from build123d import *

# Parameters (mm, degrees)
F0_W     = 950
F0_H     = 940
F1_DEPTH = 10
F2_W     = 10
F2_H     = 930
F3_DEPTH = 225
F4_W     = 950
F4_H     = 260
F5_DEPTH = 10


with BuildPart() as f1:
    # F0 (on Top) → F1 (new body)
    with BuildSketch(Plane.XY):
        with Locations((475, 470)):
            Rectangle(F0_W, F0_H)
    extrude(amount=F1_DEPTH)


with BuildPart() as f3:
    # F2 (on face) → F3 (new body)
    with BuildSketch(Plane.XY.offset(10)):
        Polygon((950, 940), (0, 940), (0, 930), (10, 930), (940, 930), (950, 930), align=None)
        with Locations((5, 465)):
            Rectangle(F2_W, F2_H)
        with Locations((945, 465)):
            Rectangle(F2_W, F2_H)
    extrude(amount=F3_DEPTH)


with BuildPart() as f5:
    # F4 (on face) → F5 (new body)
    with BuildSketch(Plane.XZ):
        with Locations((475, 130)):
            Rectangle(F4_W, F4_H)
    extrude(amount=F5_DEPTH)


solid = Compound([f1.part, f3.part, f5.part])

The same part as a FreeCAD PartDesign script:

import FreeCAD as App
import Part
import Sketcher
from FreeCAD import Vector


def add_polygon(sketch, points):
    """Adds a closed chain of lines whose ends are joined by coincident constraints."""
    first, n = sketch.GeometryCount, len(points)
    for a, b in zip(points, points[1:] + points[:1]):
        sketch.addGeometry(Part.LineSegment(App.Vector(*a, 0), App.Vector(*b, 0)), False)
    for i in range(n):
        sketch.addConstraint(Sketcher.Constraint("Coincident", first + i, 2, first + (i + 1) % n, 1))

doc = App.newDocument("Part")
body = doc.addObject("PartDesign::Body", "Body")

# Sketch on XY plane
sketch1 = body.newObject("Sketcher::SketchObject", "Sketch")
sketch1.AttachmentSupport = (doc.getObject("XY_Plane"), [""])
sketch1.MapMode = "FlatFace"
add_polygon(sketch1, [(0, 940), (0, 0), (950, 0), (950, 940)])  # lines 0-3
sketch1.addConstraint([
    Sketcher.Constraint("Vertical", 0),
    Sketcher.Constraint("Horizontal", 1),
    Sketcher.Constraint("Vertical", 2),
    Sketcher.Constraint("Horizontal", 3),
    Sketcher.Constraint("Coincident", 0, 2, -1, 1),
    Sketcher.Constraint("DistanceX", 1, 1, 1, 2, 950.0),
    Sketcher.Constraint("DistanceY", 0, 2, 0, 1, 940.0),
])
pad1 = body.newObject("PartDesign::Pad", "Pad")
pad1.Profile = sketch1
pad1.Length = 10
body2 = doc.addObject("PartDesign::Body", "Body001")

# Sketch on XY plane
sketch2 = body2.newObject("Sketcher::SketchObject", "Sketch001")
sketch2.AttachmentSupport = (doc.getObject("XY_Plane001"), [""])
sketch2.MapMode = "FlatFace"
sketch2.AttachmentOffset = App.Placement(Vector(0, 0, 10), App.Rotation())
add_polygon(sketch2, [(950, 940), (0, 940), (0, 0), (10, 0), (10, 930), (940, 930), (940, 0), (950, 0)])  # lines 0-7
sketch2.addConstraint([
    Sketcher.Constraint("Horizontal", 0),
    Sketcher.Constraint("Vertical", 1),
    Sketcher.Constraint("Horizontal", 2),
    Sketcher.Constraint("Vertical", 3),
    Sketcher.Constraint("Horizontal", 4),
    Sketcher.Constraint("Vertical", 5),
    Sketcher.Constraint("Horizontal", 6),
    Sketcher.Constraint("Vertical", 7),
    Sketcher.Constraint("Coincident", 1, 2, -1, 1),
    Sketcher.Constraint("PointOnObject", 5, 2, -1),
    Sketcher.Constraint("Equal", 2, 6),
    Sketcher.Constraint("Equal", 4, 3),
    Sketcher.Constraint("DistanceX", 0, 2, 0, 1, 950.0),
    Sketcher.Constraint("DistanceX", 2, 1, 2, 2, 10.0),
    Sketcher.Constraint("DistanceY", 1, 2, 1, 1, 940.0),
])
pad2 = body2.newObject("PartDesign::Pad", "Pad001")
pad2.Profile = sketch2
pad2.Length = 225
body3 = doc.addObject("PartDesign::Body", "Body002")

# Sketch on XZ plane
sketch3 = body3.newObject("Sketcher::SketchObject", "Sketch002")
sketch3.AttachmentSupport = (doc.getObject("XZ_Plane002"), [""])
sketch3.MapMode = "FlatFace"
add_polygon(sketch3, [(0, 260), (0, 0), (950, 0), (950, 260)])  # lines 0-3
sketch3.addConstraint([
    Sketcher.Constraint("Vertical", 0),
    Sketcher.Constraint("Horizontal", 1),
    Sketcher.Constraint("Vertical", 2),
    Sketcher.Constraint("Horizontal", 3),
    Sketcher.Constraint("Coincident", 0, 2, -1, 1),
    Sketcher.Constraint("DistanceX", 1, 1, 1, 2, 950.0),
    Sketcher.Constraint("DistanceY", 0, 2, 0, 1, 260.0),
])
pad3 = body3.newObject("PartDesign::Pad", "Pad002")
pad3.Profile = sketch3
pad3.Length = 10

doc.recompute()
